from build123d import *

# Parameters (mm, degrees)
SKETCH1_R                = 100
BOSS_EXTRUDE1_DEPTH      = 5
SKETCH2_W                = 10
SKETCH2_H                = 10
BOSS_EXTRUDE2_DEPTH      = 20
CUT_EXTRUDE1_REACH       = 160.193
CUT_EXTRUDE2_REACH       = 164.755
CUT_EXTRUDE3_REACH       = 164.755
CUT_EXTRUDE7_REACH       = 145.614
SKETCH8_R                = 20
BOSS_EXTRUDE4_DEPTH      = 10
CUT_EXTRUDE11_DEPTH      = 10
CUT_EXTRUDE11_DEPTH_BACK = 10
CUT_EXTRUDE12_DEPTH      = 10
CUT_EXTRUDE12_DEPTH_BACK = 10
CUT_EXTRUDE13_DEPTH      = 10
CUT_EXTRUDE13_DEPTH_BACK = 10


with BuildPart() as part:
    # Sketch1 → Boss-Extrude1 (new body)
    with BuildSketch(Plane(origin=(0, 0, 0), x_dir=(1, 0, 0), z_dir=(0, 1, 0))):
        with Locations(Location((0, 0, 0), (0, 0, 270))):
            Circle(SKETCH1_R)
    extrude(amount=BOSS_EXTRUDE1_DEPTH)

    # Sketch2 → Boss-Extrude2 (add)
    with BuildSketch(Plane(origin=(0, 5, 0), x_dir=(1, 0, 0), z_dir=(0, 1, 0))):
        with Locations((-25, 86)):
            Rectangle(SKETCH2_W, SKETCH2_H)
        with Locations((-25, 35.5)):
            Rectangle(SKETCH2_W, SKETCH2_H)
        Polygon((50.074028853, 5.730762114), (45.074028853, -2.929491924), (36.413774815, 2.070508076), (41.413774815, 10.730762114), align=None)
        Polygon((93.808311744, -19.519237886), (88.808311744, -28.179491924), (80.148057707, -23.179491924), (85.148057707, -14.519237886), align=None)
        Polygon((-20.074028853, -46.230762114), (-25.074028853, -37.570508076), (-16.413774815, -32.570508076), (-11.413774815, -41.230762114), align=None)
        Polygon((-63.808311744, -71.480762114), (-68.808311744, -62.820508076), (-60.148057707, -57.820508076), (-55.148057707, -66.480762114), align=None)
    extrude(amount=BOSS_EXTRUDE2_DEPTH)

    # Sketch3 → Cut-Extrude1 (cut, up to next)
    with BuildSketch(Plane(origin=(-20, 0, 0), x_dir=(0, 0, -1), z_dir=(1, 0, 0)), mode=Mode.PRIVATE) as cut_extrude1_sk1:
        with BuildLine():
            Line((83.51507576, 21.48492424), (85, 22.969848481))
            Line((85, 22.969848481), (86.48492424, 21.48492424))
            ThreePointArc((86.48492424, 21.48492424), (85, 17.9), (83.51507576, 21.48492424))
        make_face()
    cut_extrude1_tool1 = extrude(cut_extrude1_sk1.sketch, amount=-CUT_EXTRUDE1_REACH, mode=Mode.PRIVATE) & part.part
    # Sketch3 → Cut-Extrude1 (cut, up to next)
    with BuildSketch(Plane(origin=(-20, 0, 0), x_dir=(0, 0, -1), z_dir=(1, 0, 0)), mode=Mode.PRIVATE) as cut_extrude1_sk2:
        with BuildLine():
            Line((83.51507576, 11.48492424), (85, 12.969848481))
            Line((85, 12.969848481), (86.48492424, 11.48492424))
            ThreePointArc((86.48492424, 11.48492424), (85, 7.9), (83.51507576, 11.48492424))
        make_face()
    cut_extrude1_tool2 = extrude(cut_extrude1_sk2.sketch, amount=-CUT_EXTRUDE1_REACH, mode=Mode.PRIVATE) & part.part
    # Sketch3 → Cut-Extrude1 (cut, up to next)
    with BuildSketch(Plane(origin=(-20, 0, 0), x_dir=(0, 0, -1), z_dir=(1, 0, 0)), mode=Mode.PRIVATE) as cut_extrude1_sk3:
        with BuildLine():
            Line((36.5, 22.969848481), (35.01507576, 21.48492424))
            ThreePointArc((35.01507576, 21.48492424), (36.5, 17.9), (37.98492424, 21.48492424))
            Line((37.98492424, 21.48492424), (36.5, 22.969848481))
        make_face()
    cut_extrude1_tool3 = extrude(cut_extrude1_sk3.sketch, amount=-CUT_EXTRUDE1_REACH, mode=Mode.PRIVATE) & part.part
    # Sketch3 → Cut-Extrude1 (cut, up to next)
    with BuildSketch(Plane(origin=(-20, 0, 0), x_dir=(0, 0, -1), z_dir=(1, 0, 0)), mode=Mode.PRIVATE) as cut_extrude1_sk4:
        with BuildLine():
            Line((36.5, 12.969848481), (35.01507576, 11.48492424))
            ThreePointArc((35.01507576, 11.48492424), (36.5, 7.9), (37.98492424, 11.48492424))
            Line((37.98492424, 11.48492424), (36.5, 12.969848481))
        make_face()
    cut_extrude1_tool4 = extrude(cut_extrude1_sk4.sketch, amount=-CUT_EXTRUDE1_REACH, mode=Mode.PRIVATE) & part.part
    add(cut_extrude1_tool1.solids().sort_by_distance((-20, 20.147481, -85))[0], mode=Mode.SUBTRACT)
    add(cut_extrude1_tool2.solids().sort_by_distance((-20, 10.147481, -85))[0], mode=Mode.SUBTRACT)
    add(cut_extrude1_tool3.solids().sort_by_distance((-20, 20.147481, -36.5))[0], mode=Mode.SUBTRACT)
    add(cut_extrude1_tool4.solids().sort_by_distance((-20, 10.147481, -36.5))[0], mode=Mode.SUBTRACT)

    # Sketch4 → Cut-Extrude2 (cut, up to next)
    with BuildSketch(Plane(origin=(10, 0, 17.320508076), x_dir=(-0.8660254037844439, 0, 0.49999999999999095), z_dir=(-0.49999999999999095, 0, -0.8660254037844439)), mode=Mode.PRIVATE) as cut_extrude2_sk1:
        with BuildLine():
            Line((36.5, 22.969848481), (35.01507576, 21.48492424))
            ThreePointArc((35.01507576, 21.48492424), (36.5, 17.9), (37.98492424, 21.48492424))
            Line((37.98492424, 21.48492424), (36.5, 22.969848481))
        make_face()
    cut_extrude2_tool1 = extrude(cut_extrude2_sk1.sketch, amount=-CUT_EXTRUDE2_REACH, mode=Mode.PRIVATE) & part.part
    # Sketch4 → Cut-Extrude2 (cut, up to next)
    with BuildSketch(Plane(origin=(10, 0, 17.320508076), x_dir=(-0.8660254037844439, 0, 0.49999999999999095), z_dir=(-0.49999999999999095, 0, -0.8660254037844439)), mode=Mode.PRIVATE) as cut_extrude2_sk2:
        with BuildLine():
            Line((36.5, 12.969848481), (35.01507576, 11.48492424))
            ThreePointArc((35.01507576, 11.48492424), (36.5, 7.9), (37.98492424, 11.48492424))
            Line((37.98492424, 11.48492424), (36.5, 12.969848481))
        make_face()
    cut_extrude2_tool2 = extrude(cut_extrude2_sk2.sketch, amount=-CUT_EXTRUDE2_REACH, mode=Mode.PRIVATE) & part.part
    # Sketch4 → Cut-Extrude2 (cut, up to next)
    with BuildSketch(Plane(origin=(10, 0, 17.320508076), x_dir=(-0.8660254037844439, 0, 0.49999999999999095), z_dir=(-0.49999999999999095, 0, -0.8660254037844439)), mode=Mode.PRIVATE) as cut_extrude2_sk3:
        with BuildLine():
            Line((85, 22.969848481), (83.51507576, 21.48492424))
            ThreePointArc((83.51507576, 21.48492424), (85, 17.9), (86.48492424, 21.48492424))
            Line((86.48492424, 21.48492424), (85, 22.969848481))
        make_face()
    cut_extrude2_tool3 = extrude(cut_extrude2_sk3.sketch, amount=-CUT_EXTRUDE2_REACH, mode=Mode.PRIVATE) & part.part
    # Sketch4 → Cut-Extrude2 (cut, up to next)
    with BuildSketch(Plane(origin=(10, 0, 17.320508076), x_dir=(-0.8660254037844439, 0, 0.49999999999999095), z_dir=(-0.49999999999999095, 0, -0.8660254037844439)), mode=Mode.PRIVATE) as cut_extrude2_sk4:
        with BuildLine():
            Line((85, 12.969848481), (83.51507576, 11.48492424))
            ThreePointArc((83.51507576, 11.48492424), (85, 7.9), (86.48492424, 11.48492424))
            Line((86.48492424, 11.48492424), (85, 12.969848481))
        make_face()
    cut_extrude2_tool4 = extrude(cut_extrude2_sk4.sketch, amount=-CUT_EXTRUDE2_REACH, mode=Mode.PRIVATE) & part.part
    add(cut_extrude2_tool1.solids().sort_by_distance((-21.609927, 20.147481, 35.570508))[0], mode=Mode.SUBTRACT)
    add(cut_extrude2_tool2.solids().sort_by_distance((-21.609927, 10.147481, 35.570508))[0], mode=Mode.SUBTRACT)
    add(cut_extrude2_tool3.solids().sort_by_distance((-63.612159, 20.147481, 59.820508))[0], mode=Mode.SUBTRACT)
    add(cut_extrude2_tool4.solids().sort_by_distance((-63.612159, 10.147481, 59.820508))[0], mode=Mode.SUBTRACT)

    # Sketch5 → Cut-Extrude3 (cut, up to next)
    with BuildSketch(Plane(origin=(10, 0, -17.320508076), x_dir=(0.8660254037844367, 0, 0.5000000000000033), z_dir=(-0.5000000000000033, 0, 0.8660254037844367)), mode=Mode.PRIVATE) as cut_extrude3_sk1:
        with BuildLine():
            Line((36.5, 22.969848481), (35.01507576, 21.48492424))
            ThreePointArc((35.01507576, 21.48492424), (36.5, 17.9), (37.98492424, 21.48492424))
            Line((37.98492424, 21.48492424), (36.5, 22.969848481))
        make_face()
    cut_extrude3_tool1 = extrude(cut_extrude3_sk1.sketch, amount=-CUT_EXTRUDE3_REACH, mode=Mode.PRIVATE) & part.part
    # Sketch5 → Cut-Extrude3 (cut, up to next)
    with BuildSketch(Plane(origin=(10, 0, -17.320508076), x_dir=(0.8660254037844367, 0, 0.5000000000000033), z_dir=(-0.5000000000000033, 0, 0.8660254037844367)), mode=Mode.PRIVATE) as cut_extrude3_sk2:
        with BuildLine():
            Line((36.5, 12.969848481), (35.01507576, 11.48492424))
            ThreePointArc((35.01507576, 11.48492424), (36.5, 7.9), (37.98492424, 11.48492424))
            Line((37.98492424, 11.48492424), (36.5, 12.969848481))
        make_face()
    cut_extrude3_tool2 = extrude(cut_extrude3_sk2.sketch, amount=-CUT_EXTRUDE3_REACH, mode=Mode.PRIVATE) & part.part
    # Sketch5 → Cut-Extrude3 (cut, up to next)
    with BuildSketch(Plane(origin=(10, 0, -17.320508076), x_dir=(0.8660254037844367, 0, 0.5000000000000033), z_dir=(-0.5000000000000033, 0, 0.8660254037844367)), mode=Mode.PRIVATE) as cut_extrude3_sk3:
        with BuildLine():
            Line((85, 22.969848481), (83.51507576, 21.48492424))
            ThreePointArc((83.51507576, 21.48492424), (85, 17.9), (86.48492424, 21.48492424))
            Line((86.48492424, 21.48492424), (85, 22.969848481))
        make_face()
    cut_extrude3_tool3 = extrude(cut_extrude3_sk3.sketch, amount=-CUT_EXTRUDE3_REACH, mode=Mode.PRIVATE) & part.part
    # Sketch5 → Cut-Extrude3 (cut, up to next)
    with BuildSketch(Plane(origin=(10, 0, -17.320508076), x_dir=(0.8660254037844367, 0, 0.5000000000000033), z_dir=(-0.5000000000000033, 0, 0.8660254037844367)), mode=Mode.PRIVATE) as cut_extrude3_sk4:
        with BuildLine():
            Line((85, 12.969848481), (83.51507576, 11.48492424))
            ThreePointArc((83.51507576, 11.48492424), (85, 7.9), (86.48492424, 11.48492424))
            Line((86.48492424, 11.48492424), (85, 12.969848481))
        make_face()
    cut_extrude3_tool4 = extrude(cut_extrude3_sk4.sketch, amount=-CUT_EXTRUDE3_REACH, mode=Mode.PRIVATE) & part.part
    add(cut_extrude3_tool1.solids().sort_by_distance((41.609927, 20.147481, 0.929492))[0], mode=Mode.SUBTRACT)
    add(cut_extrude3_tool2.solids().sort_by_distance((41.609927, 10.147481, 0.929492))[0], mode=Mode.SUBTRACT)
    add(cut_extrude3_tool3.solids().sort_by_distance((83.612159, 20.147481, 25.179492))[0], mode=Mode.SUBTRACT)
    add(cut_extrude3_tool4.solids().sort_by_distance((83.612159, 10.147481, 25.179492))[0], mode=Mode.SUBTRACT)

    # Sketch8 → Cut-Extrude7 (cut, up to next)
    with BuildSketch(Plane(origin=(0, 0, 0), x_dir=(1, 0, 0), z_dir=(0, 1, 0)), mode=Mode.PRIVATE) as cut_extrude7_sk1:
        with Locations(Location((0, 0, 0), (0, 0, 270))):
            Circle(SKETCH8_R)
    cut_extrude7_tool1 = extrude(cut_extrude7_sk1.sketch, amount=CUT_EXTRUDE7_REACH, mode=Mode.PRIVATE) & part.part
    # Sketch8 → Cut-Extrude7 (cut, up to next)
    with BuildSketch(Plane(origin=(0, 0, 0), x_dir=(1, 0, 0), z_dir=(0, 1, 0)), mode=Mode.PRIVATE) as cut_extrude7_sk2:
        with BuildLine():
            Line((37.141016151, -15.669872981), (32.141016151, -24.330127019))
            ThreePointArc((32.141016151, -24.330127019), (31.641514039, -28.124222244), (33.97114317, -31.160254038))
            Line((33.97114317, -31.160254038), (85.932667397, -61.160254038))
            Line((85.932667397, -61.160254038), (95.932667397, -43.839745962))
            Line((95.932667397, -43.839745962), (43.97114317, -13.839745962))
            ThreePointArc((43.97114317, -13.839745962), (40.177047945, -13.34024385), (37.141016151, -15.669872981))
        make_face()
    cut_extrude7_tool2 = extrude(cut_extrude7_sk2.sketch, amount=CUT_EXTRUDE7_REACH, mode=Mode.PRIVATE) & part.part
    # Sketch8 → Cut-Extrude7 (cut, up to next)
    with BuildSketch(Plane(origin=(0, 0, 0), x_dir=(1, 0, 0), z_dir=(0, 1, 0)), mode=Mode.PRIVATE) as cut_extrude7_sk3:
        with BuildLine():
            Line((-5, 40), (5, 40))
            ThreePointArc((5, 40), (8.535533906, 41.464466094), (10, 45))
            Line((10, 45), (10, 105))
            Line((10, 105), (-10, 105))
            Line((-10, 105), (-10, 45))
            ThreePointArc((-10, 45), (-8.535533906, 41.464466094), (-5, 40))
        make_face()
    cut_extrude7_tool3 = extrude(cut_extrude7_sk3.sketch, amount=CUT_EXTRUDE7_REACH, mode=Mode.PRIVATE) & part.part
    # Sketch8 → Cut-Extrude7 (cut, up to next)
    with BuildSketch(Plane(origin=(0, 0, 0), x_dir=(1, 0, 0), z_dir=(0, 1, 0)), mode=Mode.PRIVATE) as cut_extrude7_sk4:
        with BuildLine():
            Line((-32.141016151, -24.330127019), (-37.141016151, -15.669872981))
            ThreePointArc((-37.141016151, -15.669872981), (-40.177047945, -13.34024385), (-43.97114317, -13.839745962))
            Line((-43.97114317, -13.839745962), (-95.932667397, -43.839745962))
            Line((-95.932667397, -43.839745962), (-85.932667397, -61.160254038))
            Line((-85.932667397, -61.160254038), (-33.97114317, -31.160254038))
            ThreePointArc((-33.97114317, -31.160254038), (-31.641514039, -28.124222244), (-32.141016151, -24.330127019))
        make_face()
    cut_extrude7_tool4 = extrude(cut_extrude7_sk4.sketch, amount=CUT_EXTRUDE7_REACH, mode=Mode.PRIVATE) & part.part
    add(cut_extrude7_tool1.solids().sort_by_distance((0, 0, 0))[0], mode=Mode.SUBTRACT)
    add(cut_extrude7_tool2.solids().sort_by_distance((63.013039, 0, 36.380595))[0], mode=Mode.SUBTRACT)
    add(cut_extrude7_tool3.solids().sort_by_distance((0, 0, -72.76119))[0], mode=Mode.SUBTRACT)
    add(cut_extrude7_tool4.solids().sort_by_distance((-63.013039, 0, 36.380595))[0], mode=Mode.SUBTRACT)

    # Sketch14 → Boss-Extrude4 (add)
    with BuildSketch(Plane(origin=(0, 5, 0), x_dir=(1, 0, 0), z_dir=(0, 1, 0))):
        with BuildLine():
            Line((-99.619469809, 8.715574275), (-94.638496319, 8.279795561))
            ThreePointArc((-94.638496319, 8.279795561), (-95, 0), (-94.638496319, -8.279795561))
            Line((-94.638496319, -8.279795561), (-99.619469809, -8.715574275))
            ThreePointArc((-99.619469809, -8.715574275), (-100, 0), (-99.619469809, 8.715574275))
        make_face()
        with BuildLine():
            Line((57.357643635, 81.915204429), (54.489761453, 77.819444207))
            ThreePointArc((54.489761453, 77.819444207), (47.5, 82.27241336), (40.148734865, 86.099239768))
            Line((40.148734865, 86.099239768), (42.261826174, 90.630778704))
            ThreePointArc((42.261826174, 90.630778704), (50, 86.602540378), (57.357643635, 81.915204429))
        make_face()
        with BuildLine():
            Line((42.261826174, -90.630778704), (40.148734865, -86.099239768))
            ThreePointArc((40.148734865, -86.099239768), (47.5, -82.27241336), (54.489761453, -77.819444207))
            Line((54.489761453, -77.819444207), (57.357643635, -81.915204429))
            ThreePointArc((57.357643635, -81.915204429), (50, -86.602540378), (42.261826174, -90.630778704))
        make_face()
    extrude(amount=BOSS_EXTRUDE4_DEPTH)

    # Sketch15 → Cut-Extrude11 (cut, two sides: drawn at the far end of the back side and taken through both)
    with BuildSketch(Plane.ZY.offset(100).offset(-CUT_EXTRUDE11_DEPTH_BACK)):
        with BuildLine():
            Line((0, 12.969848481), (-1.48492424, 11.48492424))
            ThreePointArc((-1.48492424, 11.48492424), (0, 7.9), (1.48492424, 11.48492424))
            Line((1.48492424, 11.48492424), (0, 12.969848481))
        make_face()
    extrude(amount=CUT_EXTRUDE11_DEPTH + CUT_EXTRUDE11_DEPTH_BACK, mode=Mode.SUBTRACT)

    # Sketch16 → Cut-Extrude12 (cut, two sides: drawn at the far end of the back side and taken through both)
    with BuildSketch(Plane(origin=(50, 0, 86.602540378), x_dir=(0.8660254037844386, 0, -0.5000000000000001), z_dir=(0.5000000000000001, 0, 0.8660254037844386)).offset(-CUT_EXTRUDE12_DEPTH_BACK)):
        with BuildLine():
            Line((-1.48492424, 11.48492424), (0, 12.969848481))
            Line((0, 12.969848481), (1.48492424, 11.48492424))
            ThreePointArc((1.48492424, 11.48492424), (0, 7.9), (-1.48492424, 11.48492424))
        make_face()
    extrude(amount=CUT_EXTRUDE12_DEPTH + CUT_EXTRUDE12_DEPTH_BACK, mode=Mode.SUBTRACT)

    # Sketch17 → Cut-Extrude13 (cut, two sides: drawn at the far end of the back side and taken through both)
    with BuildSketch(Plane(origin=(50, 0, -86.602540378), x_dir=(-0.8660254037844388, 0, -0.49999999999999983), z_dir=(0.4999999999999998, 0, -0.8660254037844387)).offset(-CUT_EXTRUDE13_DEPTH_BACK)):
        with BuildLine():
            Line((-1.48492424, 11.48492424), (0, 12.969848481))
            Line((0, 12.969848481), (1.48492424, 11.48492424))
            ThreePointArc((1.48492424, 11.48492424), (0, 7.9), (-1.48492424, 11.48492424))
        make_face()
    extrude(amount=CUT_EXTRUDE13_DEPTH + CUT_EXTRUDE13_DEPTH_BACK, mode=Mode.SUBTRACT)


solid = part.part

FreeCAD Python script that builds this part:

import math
import FreeCAD as App
import Part
import Sketcher
Q = App.Units.Quantity


def add_polygon(sketch, points):
    """Adds a closed chain of lines whose ends are joined by coincident constraints."""
    first, n = sketch.GeometryCount, len(points)
    for a, b in zip(points, points[1:] + points[:1]):
        sketch.addGeometry(Part.LineSegment(App.Vector(*a, 0), App.Vector(*b, 0)), False)
    for i in range(n):
        sketch.addConstraint(Sketcher.Constraint("Coincident", first + i, 2, first + (i + 1) % n, 1))

doc = App.newDocument("Part")
body = doc.addObject("PartDesign::Body", "Body")

# Sketch on XZ plane
sketch1 = body.newObject("Sketcher::SketchObject", "Sketch")
sketch1.AttachmentSupport = (doc.getObject("XZ_Plane"), [""])
sketch1.MapMode = "FlatFace"
sketch1.addGeometry(Part.Circle(App.Vector(0, 0, 0), App.Vector(0, 0, 1), 100), False)
sketch1.addConstraint([
    Sketcher.Constraint("Coincident", 0, 3, -1, 1),
    Sketcher.Constraint("Diameter", 0, Q("200 mm")),
])
pad1 = body.newObject("PartDesign::Pad", "Pad")
pad1.Profile = sketch1
pad1.Length = 5
pad1.Reversed = True

# Sketch on XZ plane
sketch2 = body.newObject("Sketcher::SketchObject", "Sketch001")
sketch2.AttachmentSupport = (doc.getObject("XZ_Plane"), [""])
sketch2.MapMode = "FlatFace"
sketch2.AttachmentOffset = App.Placement(App.Vector(0, 0, -5), App.Rotation())
add_polygon(sketch2, [(-30, -91), (-30, -81), (-20, -81), (-20, -91)])  # lines 0-3
add_polygon(sketch2, [(-30, -40), (-30, -30), (-20, -30), (-20, -40)])  # lines 4-7
add_polygon(sketch2, [(45, 3), (50, -6), (41, -11), (36, -2)])  # lines 8-11
add_polygon(sketch2, [(89, 28), (94, 20), (85, 15), (80, 23)])  # lines 12-15
add_polygon(sketch2, [(-25, 38), (-20, 46), (-11, 41), (-16, 33)])  # lines 16-19
add_polygon(sketch2, [(-69, 63), (-64, 71), (-55, 66), (-60, 58)])  # lines 20-23
sketch2.addConstraint([
    Sketcher.Constraint("Vertical", 0),
    Sketcher.Constraint("Horizontal", 1),
    Sketcher.Constraint("Vertical", 2),
    Sketcher.Constraint("Horizontal", 3),
    Sketcher.Constraint("Vertical", 4),
    Sketcher.Constraint("Horizontal", 5),
    Sketcher.Constraint("Vertical", 6),
    Sketcher.Constraint("Horizontal", 7),
    Sketcher.Constraint("Perpendicular", 8, 9),
    Sketcher.Constraint("Perpendicular", 9, 10),
    Sketcher.Constraint("Perpendicular", 10, 11),
    Sketcher.Constraint("Perpendicular", 11, 12),
    Sketcher.Constraint("Perpendicular", 12, 13),
    Sketcher.Constraint("Perpendicular", 13, 14),
    Sketcher.Constraint("Perpendicular", 14, 15),
    Sketcher.Constraint("Perpendicular", 16, 17),
    Sketcher.Constraint("Perpendicular", 17, 18),
    Sketcher.Constraint("Perpendicular", 18, 19),
    Sketcher.Constraint("Perpendicular", 19, 20),
    Sketcher.Constraint("Perpendicular", 20, 21),
    Sketcher.Constraint("Perpendicular", 21, 22),
    Sketcher.Constraint("Perpendicular", 22, 23),
    Sketcher.Constraint("Vertical", 3, 2, 4, 2),
    Sketcher.Constraint("Vertical", 2, 2, 5, 2),
    Sketcher.Constraint("Equal", 7, 0),
    Sketcher.Constraint("Equal", 2, 4),
    Sketcher.Constraint("Equal", 8, 9),
    Sketcher.Constraint("Equal", 11, 12),
    Sketcher.Constraint("Equal", 12, 13),
    Sketcher.Constraint("Equal", 15, 16),
    Sketcher.Constraint("Equal", 16, 17),
    Sketcher.Constraint("Equal", 19, 20),
    Sketcher.Constraint("Equal", 20, 21),
    Sketcher.Constraint("DistanceX", 1, 1, 1, 2, Q("10 mm")),
    Sketcher.Constraint("Angle", 8, Q("-60 deg")),
    Sketcher.Constraint("Angle", 16, Q("60 deg")),
    Sketcher.Constraint("Distance", 8, Q("10 mm")),
    Sketcher.Constraint("DistanceX", 0, 2, -1, 1, Q("30 mm")),
    Sketcher.Constraint("DistanceY", 0, 2, -1, 1, Q("81 mm")),
    Sketcher.Constraint("DistanceY", 4, 2, -1, 1, Q("30.5 mm")),
    Sketcher.Constraint("DistanceY", 8, 2, 12, 2, Q("25.25 mm")),
    Sketcher.Constraint("DistanceY", 16, 2, 20, 2, Q("25.25 mm")),
    Sketcher.Constraint("DistanceX", -1, 1, 8, 2, Q("50.074029 mm")),
    Sketcher.Constraint("DistanceY", 10, 2, -1, 1, Q("2.070508 mm")),
    Sketcher.Constraint("DistanceX", -1, 1, 12, 2, Q("93.808312 mm")),
    Sketcher.Constraint("DistanceX", 16, 2, -1, 1, Q("20.074029 mm")),
    Sketcher.Constraint("DistanceY", -1, 1, 18, 2, Q("32.570508 mm")),
    Sketcher.Constraint("DistanceX", 20, 2, -1, 1, Q("63.808312 mm")),
])
pad2 = body.newObject("PartDesign::Pad", "Pad001")
pad2.Profile = sketch2
pad2.Length = 20
pad2.Reversed = True

# Sketch on YZ plane
sketch3 = body.newObject("Sketcher::SketchObject", "Sketch002")
sketch3.AttachmentSupport = (doc.getObject("YZ_Plane"), [""])
sketch3.MapMode = "FlatFace"
sketch3.AttachmentOffset = App.Placement(App.Vector(0, 0, -20), App.Rotation())
sketch3.addGeometry([
    Part.LineSegment(App.Vector(23, -85, 0), App.Vector(21.5, -83.5, 0)),
    Part.ArcOfCircle(Part.Circle(App.Vector(20, -85, 0), App.Vector(0, 0, 1), 2.1), math.radians(45), math.radians(315)),
    Part.LineSegment(App.Vector(21.5, -86.5, 0), App.Vector(23, -85, 0)),
], False)
sketch3.addConstraint([
    Sketcher.Constraint("Tangent", 0, 2, 1, 1),
    Sketcher.Constraint("Tangent", 1, 2, 2, 1),
    Sketcher.Constraint("Coincident", 2, 2, 0, 1),
    Sketcher.Constraint("Perpendicular", 0, 2),
    Sketcher.Constraint("Horizontal", 1, 3, 2, 2),
    Sketcher.Constraint("Radius", 1, Q("2.1 mm")),
    Sketcher.Constraint("DistanceX", -1, 1, 1, 3, Q("20 mm")),
    Sketcher.Constraint("DistanceY", 1, 3, -1, 1, Q("85 mm")),
])
pocket1 = body.newObject("PartDesign::Pocket", "Pocket")
pocket1.Profile = sketch3
pocket1.Type = "UpToFirst"

# Sketch on YZ plane
sketch4 = body.newObject("Sketcher::SketchObject", "Sketch003")
sketch4.AttachmentSupport = (doc.getObject("YZ_Plane"), [""])
sketch4.MapMode = "FlatFace"
sketch4.AttachmentOffset = App.Placement(App.Vector(0, 0, -20), App.Rotation())
sketch4.addGeometry([
    Part.LineSegment(App.Vector(13, -85, 0), App.Vector(11.5, -83.5, 0)),
    Part.ArcOfCircle(Part.Circle(App.Vector(10, -85, 0), App.Vector(0, 0, 1), 2.1), math.radians(45), math.radians(315)),
    Part.LineSegment(App.Vector(11.5, -86.5, 0), App.Vector(13, -85, 0)),
], False)
sketch4.addConstraint([
    Sketcher.Constraint("Tangent", 0, 2, 1, 1),
    Sketcher.Constraint("Tangent", 1, 2, 2, 1),
    Sketcher.Constraint("Coincident", 2, 2, 0, 1),
    Sketcher.Constraint("Perpendicular", 0, 2),
    Sketcher.Constraint("Horizontal", 1, 3, 2, 2),
    Sketcher.Constraint("Radius", 1, Q("2.1 mm")),
    Sketcher.Constraint("DistanceX", -1, 1, 1, 3, Q("10 mm")),
    Sketcher.Constraint("DistanceY", 1, 3, -1, 1, Q("85 mm")),
])
pocket2 = body.newObject("PartDesign::Pocket", "Pocket001")
pocket2.Profile = sketch4
pocket2.Type = "UpToFirst"

# Sketch on YZ plane
sketch5 = body.newObject("Sketcher::SketchObject", "Sketch004")
sketch5.AttachmentSupport = (doc.getObject("YZ_Plane"), [""])
sketch5.MapMode = "FlatFace"
sketch5.AttachmentOffset = App.Placement(App.Vector(0, 0, -20), App.Rotation())
sketch5.addGeometry([
    Part.LineSegment(App.Vector(23, -36.5, 0), App.Vector(21.5, -35, 0)),
    Part.ArcOfCircle(Part.Circle(App.Vector(20, -36.5, 0), App.Vector(0, 0, 1), 2.1), math.radians(45), math.radians(315)),
    Part.LineSegment(App.Vector(21.5, -38, 0), App.Vector(23, -36.5, 0)),
], False)
sketch5.addConstraint([
    Sketcher.Constraint("Tangent", 0, 2, 1, 1),
    Sketcher.Constraint("Tangent", 1, 2, 2, 1),
    Sketcher.Constraint("Coincident", 2, 2, 0, 1),
    Sketcher.Constraint("Perpendicular", 0, 2),
    Sketcher.Constraint("Horizontal", 1, 3, 2, 2),
    Sketcher.Constraint("Radius", 1, Q("2.1 mm")),
    Sketcher.Constraint("DistanceX", -1, 1, 1, 3, Q("20 mm")),
    Sketcher.Constraint("DistanceY", 1, 3, -1, 1, Q("36.5 mm")),
])
pocket3 = body.newObject("PartDesign::Pocket", "Pocket002")
pocket3.Profile = sketch5
pocket3.Type = "UpToFirst"

# Sketch on YZ plane
sketch6 = body.newObject("Sketcher::SketchObject", "Sketch005")
sketch6.AttachmentSupport = (doc.getObject("YZ_Plane"), [""])
sketch6.MapMode = "FlatFace"
sketch6.AttachmentOffset = App.Placement(App.Vector(0, 0, -20), App.Rotation())
sketch6.addGeometry([
    Part.LineSegment(App.Vector(13, -36.5, 0), App.Vector(11.5, -35, 0)),
    Part.ArcOfCircle(Part.Circle(App.Vector(10, -36.5, 0), App.Vector(0, 0, 1), 2.1), math.radians(45), math.radians(315)),
    Part.LineSegment(App.Vector(11.5, -38, 0), App.Vector(13, -36.5, 0)),
], False)
sketch6.addConstraint([
    Sketcher.Constraint("Tangent", 0, 2, 1, 1),
    Sketcher.Constraint("Tangent", 1, 2, 2, 1),
    Sketcher.Constraint("Coincident", 2, 2, 0, 1),
    Sketcher.Constraint("Perpendicular", 0, 2),
    Sketcher.Constraint("Horizontal", 1, 3, 2, 2),
    Sketcher.Constraint("Radius", 1, Q("2.1 mm")),
    Sketcher.Constraint("DistanceX", -1, 1, 1, 3, Q("10 mm")),
    Sketcher.Constraint("DistanceY", 1, 3, -1, 1, Q("36.5 mm")),
])
pocket4 = body.newObject("PartDesign::Pocket", "Pocket003")
pocket4.Profile = sketch6
pocket4.Type = "UpToFirst"

# Sketch on an angled plane
sketch7 = body.newObject("Sketcher::SketchObject", "Sketch006")
sketch7.Placement = App.Placement(App.Vector(10, 0, 17.320508), App.Rotation(App.Vector(-0.866025404, 0, 0.5), App.Vector(0, 1, 0), App.Vector(-0.5, 0, -0.866025404), "ZXY"))
sketch7.addGeometry([
    Part.LineSegment(App.Vector(36.5, 23, 0), App.Vector(35, 21.5, 0)),
    Part.ArcOfCircle(Part.Circle(App.Vector(36.5, 20, 0), App.Vector(0, 0, 1), 2.1), math.radians(135), math.radians(405)),
    Part.LineSegment(App.Vector(38, 21.5, 0), App.Vector(36.5, 23, 0)),
], False)
sketch7.addConstraint([
    Sketcher.Constraint("Tangent", 0, 2, 1, 1),
    Sketcher.Constraint("Tangent", 1, 2, 2, 1),
    Sketcher.Constraint("Coincident", 2, 2, 0, 1),
    Sketcher.Constraint("Perpendicular", 0, 2),
    Sketcher.Constraint("Horizontal", 0, 2, 1, 2),
    Sketcher.Constraint("Radius", 1, Q("2.1 mm")),
    Sketcher.Constraint("DistanceY", -1, 1, 1, 3, Q("20 mm")),
    Sketcher.Constraint("DistanceX", -1, 1, 1, 3, Q("36.5 mm")),
])
pocket5 = body.newObject("PartDesign::Pocket", "Pocket004")
pocket5.Profile = sketch7
pocket5.Type = "UpToFirst"

# Sketch on an angled plane
sketch8 = body.newObject("Sketcher::SketchObject", "Sketch007")
sketch8.Placement = App.Placement(App.Vector(10, 0, 17.320508), App.Rotation(App.Vector(-0.866025404, 0, 0.5), App.Vector(0, 1, 0), App.Vector(-0.5, 0, -0.866025404), "ZXY"))
sketch8.addGeometry([
    Part.LineSegment(App.Vector(36.5, 13, 0), App.Vector(35, 11.5, 0)),
    Part.ArcOfCircle(Part.Circle(App.Vector(36.5, 10, 0), App.Vector(0, 0, 1), 2.1), math.radians(135), math.radians(405)),
    Part.LineSegment(App.Vector(38, 11.5, 0), App.Vector(36.5, 13, 0)),
], False)
sketch8.addConstraint([
    Sketcher.Constraint("Tangent", 0, 2, 1, 1),
    Sketcher.Constraint("Tangent", 1, 2, 2, 1),
    Sketcher.Constraint("Coincident", 2, 2, 0, 1),
    Sketcher.Constraint("Perpendicular", 0, 2),
    Sketcher.Constraint("Horizontal", 0, 2, 1, 2),
    Sketcher.Constraint("Radius", 1, Q("2.1 mm")),
    Sketcher.Constraint("DistanceY", -1, 1, 1, 3, Q("10 mm")),
    Sketcher.Constraint("DistanceX", -1, 1, 1, 3, Q("36.5 mm")),
])
pocket6 = body.newObject("PartDesign::Pocket", "Pocket005")
pocket6.Profile = sketch8
pocket6.Type = "UpToFirst"

# Sketch on an angled plane
sketch9 = body.newObject("Sketcher::SketchObject", "Sketch008")
sketch9.Placement = App.Placement(App.Vector(10, 0, 17.320508), App.Rotation(App.Vector(-0.866025404, 0, 0.5), App.Vector(0, 1, 0), App.Vector(-0.5, 0, -0.866025404), "ZXY"))
sketch9.addGeometry([
    Part.LineSegment(App.Vector(85, 23, 0), App.Vector(83.5, 21.5, 0)),
    Part.ArcOfCircle(Part.Circle(App.Vector(85, 20, 0), App.Vector(0, 0, 1), 2.1), math.radians(135), math.radians(405)),
    Part.LineSegment(App.Vector(86.5, 21.5, 0), App.Vector(85, 23, 0)),
], False)
sketch9.addConstraint([
    Sketcher.Constraint("Tangent", 0, 2, 1, 1),
    Sketcher.Constraint("Tangent", 1, 2, 2, 1),
    Sketcher.Constraint("Coincident", 2, 2, 0, 1),
    Sketcher.Constraint("Perpendicular", 0, 2),
    Sketcher.Constraint("Horizontal", 0, 2, 1, 2),
    Sketcher.Constraint("Radius", 1, Q("2.1 mm")),
    Sketcher.Constraint("DistanceX", -1, 1, 1, 3, Q("85 mm")),
    Sketcher.Constraint("DistanceY", -1, 1, 1, 3, Q("20 mm")),
])
pocket7 = body.newObject("PartDesign::Pocket", "Pocket006")
pocket7.Profile = sketch9
pocket7.Type = "UpToFirst"

# Sketch on an angled plane
sketch10 = body.newObject("Sketcher::SketchObject", "Sketch009")
sketch10.Placement = App.Placement(App.Vector(10, 0, 17.320508), App.Rotation(App.Vector(-0.866025404, 0, 0.5), App.Vector(0, 1, 0), App.Vector(-0.5, 0, -0.866025404), "ZXY"))
sketch10.addGeometry([
    Part.LineSegment(App.Vector(85, 13, 0), App.Vector(83.5, 11.5, 0)),
    Part.ArcOfCircle(Part.Circle(App.Vector(85, 10, 0), App.Vector(0, 0, 1), 2.1), math.radians(135), math.radians(405)),
    Part.LineSegment(App.Vector(86.5, 11.5, 0), App.Vector(85, 13, 0)),
], False)
sketch10.addConstraint([
    Sketcher.Constraint("Tangent", 0, 2, 1, 1),
    Sketcher.Constraint("Tangent", 1, 2, 2, 1),
    Sketcher.Constraint("Coincident", 2, 2, 0, 1),
    Sketcher.Constraint("Perpendicular", 0, 2),
    Sketcher.Constraint("Horizontal", 0, 2, 1, 2),
    Sketcher.Constraint("Radius", 1, Q("2.1 mm")),
    Sketcher.Constraint("DistanceX", -1, 1, 1, 3, Q("85 mm")),
    Sketcher.Constraint("DistanceY", -1, 1, 1, 3, Q("10 mm")),
])
pocket8 = body.newObject("PartDesign::Pocket", "Pocket007")
pocket8.Profile = sketch10
pocket8.Type = "UpToFirst"

# Sketch on an angled plane
sketch11 = body.newObject("Sketcher::SketchObject", "Sketch010")
sketch11.Placement = App.Placement(App.Vector(10, 0, -17.320508), App.Rotation(App.Vector(0.866025404, 0, 0.5), App.Vector(0, 1, 0), App.Vector(-0.5, 0, 0.866025404), "ZXY"))
sketch11.addGeometry([
    Part.LineSegment(App.Vector(36.5, 23, 0), App.Vector(35, 21.5, 0)),
    Part.ArcOfCircle(Part.Circle(App.Vector(36.5, 20, 0), App.Vector(0, 0, 1), 2.1), math.radians(135), math.radians(405)),
    Part.LineSegment(App.Vector(38, 21.5, 0), App.Vector(36.5, 23, 0)),
], False)
sketch11.addConstraint([
    Sketcher.Constraint("Tangent", 0, 2, 1, 1),
    Sketcher.Constraint("Tangent", 1, 2, 2, 1),
    Sketcher.Constraint("Coincident", 2, 2, 0, 1),
    Sketcher.Constraint("Perpendicular", 0, 2),
    Sketcher.Constraint("Horizontal", 0, 2, 1, 2),
    Sketcher.Constraint("Radius", 1, Q("2.1 mm")),
    Sketcher.Constraint("DistanceY", -1, 1, 1, 3, Q("20 mm")),
    Sketcher.Constraint("DistanceX", -1, 1, 1, 3, Q("36.5 mm")),
])
pocket9 = body.newObject("PartDesign::Pocket", "Pocket008")
pocket9.Profile = sketch11
pocket9.Type = "UpToFirst"

# Sketch on an angled plane
sketch12 = body.newObject("Sketcher::SketchObject", "Sketch011")
sketch12.Placement = App.Placement(App.Vector(10, 0, -17.320508), App.Rotation(App.Vector(0.866025404, 0, 0.5), App.Vector(0, 1, 0), App.Vector(-0.5, 0, 0.866025404), "ZXY"))
sketch12.addGeometry([
    Part.LineSegment(App.Vector(36.5, 13, 0), App.Vector(35, 11.5, 0)),
    Part.ArcOfCircle(Part.Circle(App.Vector(36.5, 10, 0), App.Vector(0, 0, 1), 2.1), math.radians(135), math.radians(405)),
    Part.LineSegment(App.Vector(38, 11.5, 0), App.Vector(36.5, 13, 0)),
], False)
sketch12.addConstraint([
    Sketcher.Constraint("Tangent", 0, 2, 1, 1),
    Sketcher.Constraint("Tangent", 1, 2, 2, 1),
    Sketcher.Constraint("Coincident", 2, 2, 0, 1),
    Sketcher.Constraint("Perpendicular", 0, 2),
    Sketcher.Constraint("Horizontal", 0, 2, 1, 2),
    Sketcher.Constraint("Radius", 1, Q("2.1 mm")),
    Sketcher.Constraint("DistanceY", -1, 1, 1, 3, Q("10 mm")),
    Sketcher.Constraint("DistanceX", -1, 1, 1, 3, Q("36.5 mm")),
])
pocket10 = body.newObject("PartDesign::Pocket", "Pocket009")
pocket10.Profile = sketch12
pocket10.Type = "UpToFirst"

# Sketch on an angled plane
sketch13 = body.newObject("Sketcher::SketchObject", "Sketch012")
sketch13.Placement = App.Placement(App.Vector(10, 0, -17.320508), App.Rotation(App.Vector(0.866025404, 0, 0.5), App.Vector(0, 1, 0), App.Vector(-0.5, 0, 0.866025404), "ZXY"))
sketch13.addGeometry([
    Part.LineSegment(App.Vector(85, 23, 0), App.Vector(83.5, 21.5, 0)),
    Part.ArcOfCircle(Part.Circle(App.Vector(85, 20, 0), App.Vector(0, 0, 1), 2.1), math.radians(135), math.radians(405)),
    Part.LineSegment(App.Vector(86.5, 21.5, 0), App.Vector(85, 23, 0)),
], False)
sketch13.addConstraint([
    Sketcher.Constraint("Tangent", 0, 2, 1, 1),
    Sketcher.Constraint("Tangent", 1, 2, 2, 1),
    Sketcher.Constraint("Coincident", 2, 2, 0, 1),
    Sketcher.Constraint("Perpendicular", 0, 2),
    Sketcher.Constraint("Horizontal", 0, 2, 1, 2),
    Sketcher.Constraint("Radius", 1, Q("2.1 mm")),
    Sketcher.Constraint("DistanceX", -1, 1, 1, 3, Q("85 mm")),
    Sketcher.Constraint("DistanceY", -1, 1, 1, 3, Q("20 mm")),
])
pocket11 = body.newObject("PartDesign::Pocket", "Pocket010")
pocket11.Profile = sketch13
pocket11.Type = "UpToFirst"

# Sketch on an angled plane
sketch14 = body.newObject("Sketcher::SketchObject", "Sketch013")
sketch14.Placement = App.Placement(App.Vector(10, 0, -17.320508), App.Rotation(App.Vector(0.866025404, 0, 0.5), App.Vector(0, 1, 0), App.Vector(-0.5, 0, 0.866025404), "ZXY"))
sketch14.addGeometry([
    Part.LineSegment(App.Vector(85, 13, 0), App.Vector(83.5, 11.5, 0)),
    Part.ArcOfCircle(Part.Circle(App.Vector(85, 10, 0), App.Vector(0, 0, 1), 2.1), math.radians(135), math.radians(405)),
    Part.LineSegment(App.Vector(86.5, 11.5, 0), App.Vector(85, 13, 0)),
], False)
sketch14.addConstraint([
    Sketcher.Constraint("Tangent", 0, 2, 1, 1),
    Sketcher.Constraint("Tangent", 1, 2, 2, 1),
    Sketcher.Constraint("Coincident", 2, 2, 0, 1),
    Sketcher.Constraint("Perpendicular", 0, 2),
    Sketcher.Constraint("Horizontal", 0, 2, 1, 2),
    Sketcher.Constraint("Radius", 1, Q("2.1 mm")),
    Sketcher.Constraint("DistanceX", -1, 1, 1, 3, Q("85 mm")),
    Sketcher.Constraint("DistanceY", -1, 1, 1, 3, Q("10 mm")),
])
pocket12 = body.newObject("PartDesign::Pocket", "Pocket011")
pocket12.Profile = sketch14
pocket12.Type = "UpToFirst"

# Sketch on XZ plane
sketch15 = body.newObject("Sketcher::SketchObject", "Sketch014")
sketch15.AttachmentSupport = (doc.getObject("XZ_Plane"), [""])
sketch15.MapMode = "FlatFace"
sketch15.addGeometry(Part.Circle(App.Vector(0, 0, 0), App.Vector(0, 0, 1), 20), False)
sketch15.addConstraint([
    Sketcher.Constraint("Coincident", 0, 3, -1, 1),
    Sketcher.Constraint("Diameter", 0, Q("40 mm")),
])
pocket13 = body.newObject("PartDesign::Pocket", "Pocket012")
pocket13.Profile = sketch15
pocket13.Type = "UpToFirst"

# Sketch on XZ plane
sketch16 = body.newObject("Sketcher::SketchObject", "Sketch015")
sketch16.AttachmentSupport = (doc.getObject("XZ_Plane"), [""])
sketch16.MapMode = "FlatFace"
sketch16.addGeometry([
    Part.LineSegment(App.Vector(37, 16, 0), App.Vector(32, 24, 0)),  # 0
    Part.ArcOfCircle(Part.Circle(App.Vector(36, 27, 0), App.Vector(0, 0, 1), 5), math.radians(120), math.radians(210)),  # 1
    Part.LineSegment(App.Vector(34, 31, 0), App.Vector(86, 61, 0)),  # 2
    Part.LineSegment(App.Vector(86, 61, 0), App.Vector(96, 44, 0)),  # 3
    Part.LineSegment(App.Vector(96, 44, 0), App.Vector(44, 14, 0)),  # 4
    Part.ArcOfCircle(Part.Circle(App.Vector(41, 18, 0), App.Vector(0, 0, 1), 5), math.radians(-150), math.radians(-60)),  # 5
], False)
sketch16.addConstraint([
    Sketcher.Constraint("Tangent", 0, 2, 1, 2),
    Sketcher.Constraint("Tangent", 1, 1, 2, 1),
    Sketcher.Constraint("Coincident", 2, 2, 3, 1),
    Sketcher.Constraint("Coincident", 3, 2, 4, 1),
    Sketcher.Constraint("Tangent", 4, 2, 5, 2),
    Sketcher.Constraint("Tangent", 5, 1, 0, 1),
    Sketcher.Constraint("Equal", 1, 5),
    Sketcher.Constraint("Perpendicular", 0, 2),
    Sketcher.Constraint("Perpendicular", 2, 3),
    Sketcher.Constraint("Perpendicular", 3, 4),
    Sketcher.Constraint("Radius", 1, Q("5 mm")),
    Sketcher.Constraint("Angle", 0, Q("120 deg")),
    Sketcher.Constraint("Distance", 0, Q("10 mm")),
    Sketcher.Constraint("Distance", 2, Q("60 mm")),
    Sketcher.Constraint("DistanceX", -1, 1, 1, 3, Q("36.471143 mm")),
    Sketcher.Constraint("DistanceY", -1, 1, 1, 3, Q("26.830127 mm")),
])
pocket14 = body.newObject("PartDesign::Pocket", "Pocket013")
pocket14.Profile = sketch16
pocket14.Type = "UpToFirst"

# Sketch on XZ plane
sketch17 = body.newObject("Sketcher::SketchObject", "Sketch016")
sketch17.AttachmentSupport = (doc.getObject("XZ_Plane"), [""])
sketch17.MapMode = "FlatFace"
sketch17.addGeometry([
    Part.LineSegment(App.Vector(-5, -40, 0), App.Vector(5, -40, 0)),  # 0
    Part.ArcOfCircle(Part.Circle(App.Vector(5, -45, 0), App.Vector(0, 0, 1), 5), math.radians(0), math.radians(90)),  # 1
    Part.LineSegment(App.Vector(10, -45, 0), App.Vector(10, -105, 0)),  # 2
    Part.LineSegment(App.Vector(10, -105, 0), App.Vector(-10, -105, 0)),  # 3
    Part.LineSegment(App.Vector(-10, -105, 0), App.Vector(-10, -45, 0)),  # 4
    Part.ArcOfCircle(Part.Circle(App.Vector(-5, -45, 0), App.Vector(0, 0, 1), 5), math.radians(90), math.radians(180)),  # 5
], False)
sketch17.addConstraint([
    Sketcher.Constraint("Tangent", 0, 2, 1, 2),
    Sketcher.Constraint("Tangent", 1, 1, 2, 1),
    Sketcher.Constraint("Coincident", 2, 2, 3, 1),
    Sketcher.Constraint("Coincident", 3, 2, 4, 1),
    Sketcher.Constraint("Tangent", 4, 2, 5, 2),
    Sketcher.Constraint("Tangent", 5, 1, 0, 1),
    Sketcher.Constraint("Horizontal", 0),
    Sketcher.Constraint("Vertical", 2),
    Sketcher.Constraint("Horizontal", 3),
    Sketcher.Constraint("Vertical", 4),
    Sketcher.Constraint("Equal", 1, 5),
    Sketcher.Constraint("Radius", 1, Q("5 mm")),
    Sketcher.Constraint("DistanceX", 0, 1, 0, 2, Q("10 mm")),
    Sketcher.Constraint("DistanceY", 2, 2, 2, 1, Q("60 mm")),
    Sketcher.Constraint("DistanceX", -1, 1, 1, 3, Q("5 mm")),
    Sketcher.Constraint("DistanceY", 1, 3, -1, 1, Q("45 mm")),
])
pocket15 = body.newObject("PartDesign::Pocket", "Pocket014")
pocket15.Profile = sketch17
pocket15.Type = "UpToFirst"

# Sketch on XZ plane
sketch18 = body.newObject("Sketcher::SketchObject", "Sketch017")
sketch18.AttachmentSupport = (doc.getObject("XZ_Plane"), [""])
sketch18.MapMode = "FlatFace"
sketch18.addGeometry([
    Part.LineSegment(App.Vector(-32, 24, 0), App.Vector(-37, 16, 0)),  # 0
    Part.ArcOfCircle(Part.Circle(App.Vector(-41, 18, 0), App.Vector(0, 0, 1), 5), math.radians(-120), math.radians(-30)),  # 1
    Part.LineSegment(App.Vector(-44, 14, 0), App.Vector(-96, 44, 0)),  # 2
    Part.LineSegment(App.Vector(-96, 44, 0), App.Vector(-86, 61, 0)),  # 3
    Part.LineSegment(App.Vector(-86, 61, 0), App.Vector(-34, 31, 0)),  # 4
    Part.ArcOfCircle(Part.Circle(App.Vector(-36, 27, 0), App.Vector(0, 0, 1), 5), math.radians(-30), math.radians(60)),  # 5
], False)
sketch18.addConstraint([
    Sketcher.Constraint("Tangent", 0, 2, 1, 2),
    Sketcher.Constraint("Tangent", 1, 1, 2, 1),
    Sketcher.Constraint("Coincident", 2, 2, 3, 1),
    Sketcher.Constraint("Coincident", 3, 2, 4, 1),
    Sketcher.Constraint("Tangent", 4, 2, 5, 2),
    Sketcher.Constraint("Tangent", 5, 1, 0, 1),
    Sketcher.Constraint("Equal", 1, 5),
    Sketcher.Constraint("Perpendicular", 0, 2),
    Sketcher.Constraint("Perpendicular", 2, 3),
    Sketcher.Constraint("Perpendicular", 3, 4),
    Sketcher.Constraint("Radius", 1, Q("5 mm")),
    Sketcher.Constraint("Angle", 0, Q("-120 deg")),
    Sketcher.Constraint("Distance", 0, Q("10 mm")),
    Sketcher.Constraint("Distance", 2, Q("60 mm")),
    Sketcher.Constraint("DistanceX", 1, 3, -1, 1, Q("41.471143 mm")),
    Sketcher.Constraint("DistanceY", -1, 1, 1, 3, Q("18.169873 mm")),
])
pocket16 = body.newObject("PartDesign::Pocket", "Pocket015")
pocket16.Profile = sketch18
pocket16.Type = "UpToFirst"

# Sketch on XZ plane
sketch19 = body.newObject("Sketcher::SketchObject", "Sketch018")
sketch19.AttachmentSupport = (doc.getObject("XZ_Plane"), [""])
sketch19.MapMode = "FlatFace"
sketch19.AttachmentOffset = App.Placement(App.Vector(0, 0, -5), App.Rotation())
sketch19.addGeometry([
    Part.LineSegment(App.Vector(-94.6, -8.3, 0), App.Vector(-99.6, -8.7, 0)),  # 0
    Part.ArcOfCircle(Part.Circle(App.Vector(0, 0, 0), App.Vector(0, 0, 1), 100), math.radians(175), math.radians(185)),  # 1
    Part.LineSegment(App.Vector(-99.6, 8.7, 0), App.Vector(-94.6, 8.3, 0)),  # 2
    Part.ArcOfCircle(Part.Circle(App.Vector(0, 0, 0), App.Vector(0, 0, 1), 95), math.radians(175), math.radians(185)),  # 3
    Part.LineSegment(App.Vector(54.5, -77.8, 0), App.Vector(57.4, -81.9, 0)),  # 4
    Part.ArcOfCircle(Part.Circle(App.Vector(0, 0, 0), App.Vector(0, 0, 1), 100), math.radians(-65), math.radians(-55)),  # 5
    Part.LineSegment(App.Vector(42.3, -90.6, 0), App.Vector(40.1, -86.1, 0)),  # 6
    Part.ArcOfCircle(Part.Circle(App.Vector(0, 0, 0), App.Vector(0, 0, 1), 95), math.radians(-65), math.radians(-55)),  # 7
    Part.LineSegment(App.Vector(40.1, 86.1, 0), App.Vector(42.3, 90.6, 0)),  # 8
    Part.ArcOfCircle(Part.Circle(App.Vector(0, 0, 0), App.Vector(0, 0, 1), 100), math.radians(55), math.radians(65)),  # 9
    Part.LineSegment(App.Vector(57.4, 81.9, 0), App.Vector(54.5, 77.8, 0)),  # 10
    Part.ArcOfCircle(Part.Circle(App.Vector(0, 0, 0), App.Vector(0, 0, 1), 95), math.radians(55), math.radians(65)),  # 11
], False)
sketch19.addConstraint([
    Sketcher.Constraint("Coincident", 0, 2, 1, 2),
    Sketcher.Constraint("Coincident", 1, 1, 2, 1),
    Sketcher.Constraint("Coincident", 2, 2, 3, 1),
    Sketcher.Constraint("Coincident", 3, 2, 0, 1),
    Sketcher.Constraint("Coincident", 4, 2, 5, 2),
    Sketcher.Constraint("Coincident", 5, 1, 6, 1),
    Sketcher.Constraint("Coincident", 6, 2, 7, 1),
    Sketcher.Constraint("Coincident", 7, 2, 4, 1),
    Sketcher.Constraint("Coincident", 8, 2, 9, 2),
    Sketcher.Constraint("Coincident", 9, 1, 10, 1),
    Sketcher.Constraint("Coincident", 10, 2, 11, 1),
    Sketcher.Constraint("Coincident", 11, 2, 8, 1),
    Sketcher.Constraint("Coincident", 1, 3, -1, 1),
    Sketcher.Constraint("Coincident", 3, 3, -1, 1),
    Sketcher.Constraint("Coincident", 5, 3, -1, 1),
    Sketcher.Constraint("Coincident", 7, 3, -1, 1),
    Sketcher.Constraint("Coincident", 9, 3, -1, 1),
    Sketcher.Constraint("Coincident", 11, 3, -1, 1),
    Sketcher.Constraint("Equal", 1, 5),
    Sketcher.Constraint("Equal", 3, 7),
    Sketcher.Constraint("Equal", 5, 9),
    Sketcher.Constraint("Equal", 7, 11),
    Sketcher.Constraint("Vertical", 0, 2, 1, 1),
    Sketcher.Constraint("Vertical", 2, 2, 3, 2),
    Sketcher.Constraint("Vertical", 5, 1, 8, 2),
    Sketcher.Constraint("Vertical", 4, 2, 9, 1),
    Sketcher.Constraint("Vertical", 7, 2, 10, 2),
    Sketcher.Constraint("Vertical", 6, 2, 11, 2),
    Sketcher.Constraint("Radius", 1, Q("100 mm")),
    Sketcher.Constraint("Radius", 3, Q("95 mm")),
    Sketcher.Constraint("Angle", 0, Q("-175 deg")),
    Sketcher.Constraint("Angle", 4, Q("-55 deg")),
    Sketcher.Constraint("Angle", 6, Q("115 deg")),
    Sketcher.Constraint("DistanceX", 0, 2, -1, 1, Q("99.61947 mm")),
    Sketcher.Constraint("DistanceY", 5, 1, -1, 1, Q("90.630779 mm")),
    Sketcher.Constraint("DistanceX", -1, 1, 7, 2, Q("54.489761 mm")),
])
pad3 = body.newObject("PartDesign::Pad", "Pad002")
pad3.Profile = sketch19
pad3.Length = 10
pad3.Reversed = True

# Sketch on YZ plane
sketch20 = body.newObject("Sketcher::SketchObject", "Sketch019")
sketch20.AttachmentSupport = (doc.getObject("YZ_Plane"), [""])
sketch20.MapMode = "FlatFace"
sketch20.AttachmentOffset = App.Placement(App.Vector(0, 0, -100), App.Rotation())
sketch20.addGeometry([
    Part.LineSegment(App.Vector(13, 0, 0), App.Vector(11.5, -1.5, 0)),
    Part.ArcOfCircle(Part.Circle(App.Vector(10, 0, 0), App.Vector(0, 0, 1), 2.1), math.radians(45), math.radians(315)),
    Part.LineSegment(App.Vector(11.5, 1.5, 0), App.Vector(13, 0, 0)),
], False)
sketch20.addConstraint([
    Sketcher.Constraint("Tangent", 0, 2, 1, 2),
    Sketcher.Constraint("Tangent", 1, 1, 2, 1),
    Sketcher.Constraint("Coincident", 2, 2, 0, 1),
    Sketcher.Constraint("Symmetric", 0, 2, 1, 1, -1),
    Sketcher.Constraint("Perpendicular", 0, 2),
    Sketcher.Constraint("Radius", 1, Q("2.1 mm")),
    Sketcher.Constraint("DistanceX", -1, 1, 1, 3, Q("10 mm")),
])
pocket17 = body.newObject("PartDesign::Pocket", "Pocket016")
pocket17.Profile = sketch20
pocket17.Type = "TwoLengths"
pocket17.Length = 10
pocket17.Length2 = 10

# Sketch on an angled plane
sketch21 = body.newObject("Sketcher::SketchObject", "Sketch020")
sketch21.Placement = App.Placement(App.Vector(50, 0, 86.60254), App.Rotation(App.Vector(0.866025404, 0, -0.5), App.Vector(0, 1, 0), App.Vector(0.5, 0, 0.866025404), "ZXY"))
sketch21.addGeometry([
    Part.LineSegment(App.Vector(0, 13, 0), App.Vector(-1.5, 11.5, 0)),
    Part.ArcOfCircle(Part.Circle(App.Vector(0, 10, 0), App.Vector(0, 0, 1), 2.1), math.radians(135), math.radians(405)),
    Part.LineSegment(App.Vector(1.5, 11.5, 0), App.Vector(0, 13, 0)),
], False)
sketch21.addConstraint([
    Sketcher.Constraint("Tangent", 0, 2, 1, 1),
    Sketcher.Constraint("Tangent", 1, 2, 2, 1),
    Sketcher.Constraint("Coincident", 2, 2, 0, 1),
    Sketcher.Constraint("Symmetric", 0, 2, 1, 2, -2),
    Sketcher.Constraint("Perpendicular", 0, 2),
    Sketcher.Constraint("Radius", 1, Q("2.1 mm")),
    Sketcher.Constraint("DistanceY", -1, 1, 1, 3, Q("10 mm")),
])
pocket18 = body.newObject("PartDesign::Pocket", "Pocket017")
pocket18.Profile = sketch21
pocket18.Type = "TwoLengths"
pocket18.Length = 10
pocket18.Length2 = 10
pocket18.Reversed = True

# Sketch on an angled plane
sketch22 = body.newObject("Sketcher::SketchObject", "Sketch021")
sketch22.Placement = App.Placement(App.Vector(50, 0, -86.60254), App.Rotation(App.Vector(-0.866025404, 0, -0.5), App.Vector(0, 1, 0), App.Vector(0.5, 0, -0.866025404), "ZXY"))
sketch22.addGeometry([
    Part.LineSegment(App.Vector(0, 13, 0), App.Vector(-1.5, 11.5, 0)),
    Part.ArcOfCircle(Part.Circle(App.Vector(0, 10, 0), App.Vector(0, 0, 1), 2.1), math.radians(135), math.radians(405)),
    Part.LineSegment(App.Vector(1.5, 11.5, 0), App.Vector(0, 13, 0)),
], False)
sketch22.addConstraint([
    Sketcher.Constraint("Tangent", 0, 2, 1, 1),
    Sketcher.Constraint("Tangent", 1, 2, 2, 1),
    Sketcher.Constraint("Coincident", 2, 2, 0, 1),
    Sketcher.Constraint("Symmetric", 0, 2, 1, 2, -2),
    Sketcher.Constraint("Perpendicular", 0, 2),
    Sketcher.Constraint("Radius", 1, Q("2.1 mm")),
    Sketcher.Constraint("DistanceY", -1, 1, 1, 3, Q("10 mm")),
])
pocket19 = body.newObject("PartDesign::Pocket", "Pocket018")
pocket19.Profile = sketch22
pocket19.Type = "TwoLengths"
pocket19.Length = 10
pocket19.Length2 = 10
pocket19.Reversed = True

doc.recompute()
